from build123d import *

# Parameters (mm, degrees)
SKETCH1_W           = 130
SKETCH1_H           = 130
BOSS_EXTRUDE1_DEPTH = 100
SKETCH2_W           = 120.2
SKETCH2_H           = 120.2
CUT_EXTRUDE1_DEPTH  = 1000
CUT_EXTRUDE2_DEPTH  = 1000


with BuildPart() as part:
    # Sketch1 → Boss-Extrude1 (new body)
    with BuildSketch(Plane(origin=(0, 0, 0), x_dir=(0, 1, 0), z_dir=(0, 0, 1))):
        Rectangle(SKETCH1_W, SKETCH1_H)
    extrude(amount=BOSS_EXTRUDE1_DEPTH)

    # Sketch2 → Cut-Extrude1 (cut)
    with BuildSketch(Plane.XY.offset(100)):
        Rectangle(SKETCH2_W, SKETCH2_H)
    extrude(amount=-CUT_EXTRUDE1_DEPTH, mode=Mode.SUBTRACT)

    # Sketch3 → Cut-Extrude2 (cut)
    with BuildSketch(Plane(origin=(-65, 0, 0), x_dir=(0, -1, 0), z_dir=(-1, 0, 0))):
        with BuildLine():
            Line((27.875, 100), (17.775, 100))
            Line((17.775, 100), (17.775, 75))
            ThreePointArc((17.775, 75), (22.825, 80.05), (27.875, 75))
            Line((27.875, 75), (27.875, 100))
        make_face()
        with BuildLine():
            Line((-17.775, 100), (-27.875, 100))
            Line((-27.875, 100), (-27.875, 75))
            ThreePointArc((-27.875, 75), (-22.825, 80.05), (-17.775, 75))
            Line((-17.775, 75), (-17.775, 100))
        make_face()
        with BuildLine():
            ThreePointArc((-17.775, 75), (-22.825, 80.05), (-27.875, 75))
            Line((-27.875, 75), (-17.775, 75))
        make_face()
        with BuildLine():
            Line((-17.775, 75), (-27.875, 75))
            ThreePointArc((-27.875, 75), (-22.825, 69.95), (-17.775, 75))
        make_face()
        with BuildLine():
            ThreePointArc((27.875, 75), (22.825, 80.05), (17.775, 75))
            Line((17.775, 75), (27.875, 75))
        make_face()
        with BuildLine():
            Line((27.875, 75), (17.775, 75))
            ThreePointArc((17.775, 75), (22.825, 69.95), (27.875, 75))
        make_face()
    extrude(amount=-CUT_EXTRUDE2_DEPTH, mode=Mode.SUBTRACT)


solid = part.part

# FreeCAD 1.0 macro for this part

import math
import FreeCAD as App
import Part
import Sketcher
from FreeCAD import Vector

doc = App.newDocument("Part")
body = doc.addObject("PartDesign::Body", "Body")

sketch1 = body.newObject("Sketcher::SketchObject", "Sketch")
sketch1.AttachmentSupport = (doc.getObject("XY_Plane"), [""])
sketch1.MapMode = "FlatFace"
sketch1.addGeometry(Part.LineSegment(Vector(-65, -65, 0), Vector(65, -65, 0)), False)
sketch1.addGeometry(Part.LineSegment(Vector(65, -65, 0), Vector(65, 65, 0)), False)
sketch1.addGeometry(Part.LineSegment(Vector(65, 65, 0), Vector(-65, 65, 0)), False)
sketch1.addGeometry(Part.LineSegment(Vector(-65, 65, 0), Vector(-65, -65, 0)), False)
sketch1.addConstraint(Sketcher.Constraint("Coincident", 0, 2, 1, 1))
sketch1.addConstraint(Sketcher.Constraint("Coincident", 1, 2, 2, 1))
sketch1.addConstraint(Sketcher.Constraint("Coincident", 2, 2, 3, 1))
sketch1.addConstraint(Sketcher.Constraint("Coincident", 3, 2, 0, 1))
sketch1.addConstraint(Sketcher.Constraint("Horizontal", 0))
sketch1.addConstraint(Sketcher.Constraint("Vertical", 1))
sketch1.addConstraint(Sketcher.Constraint("Horizontal", 2))
sketch1.addConstraint(Sketcher.Constraint("Vertical", 3))
sketch1.addConstraint(Sketcher.Constraint("Symmetric", 0, 2, 2, 2, -1, 1))
sketch1.addConstraint(Sketcher.Constraint("Equal", 2, 1))
sketch1.addConstraint(Sketcher.Constraint("DistanceX", 0, 1, 0, 2, 130.0))
pad1 = body.newObject("PartDesign::Pad", "Pad")
pad1.Profile = sketch1
pad1.Length = 100

sketch2 = body.newObject("Sketcher::SketchObject", "Sketch001")
sketch2.AttachmentSupport = (doc.getObject("XY_Plane"), [""])
sketch2.MapMode = "FlatFace"
sketch2.AttachmentOffset = App.Placement(Vector(0, 0, 100), App.Rotation())
sketch2.addGeometry(Part.LineSegment(Vector(-60, 60, 0), Vector(-60, -60, 0)), False)
sketch2.addGeometry(Part.LineSegment(Vector(-60, -60, 0), Vector(60, -60, 0)), False)
sketch2.addGeometry(Part.LineSegment(Vector(60, -60, 0), Vector(60, 60, 0)), False)
sketch2.addGeometry(Part.LineSegment(Vector(60, 60, 0), Vector(-60, 60, 0)), False)
sketch2.addConstraint(Sketcher.Constraint("Coincident", 0, 2, 1, 1))
sketch2.addConstraint(Sketcher.Constraint("Coincident", 1, 2, 2, 1))
sketch2.addConstraint(Sketcher.Constraint("Coincident", 2, 2, 3, 1))
sketch2.addConstraint(Sketcher.Constraint("Coincident", 3, 2, 0, 1))
sketch2.addConstraint(Sketcher.Constraint("Vertical", 0))
sketch2.addConstraint(Sketcher.Constraint("Horizontal", 1))
sketch2.addConstraint(Sketcher.Constraint("Vertical", 2))
sketch2.addConstraint(Sketcher.Constraint("Horizontal", 3))
sketch2.addConstraint(Sketcher.Constraint("Symmetric", 0, 2, 2, 2, -1, 1))
sketch2.addConstraint(Sketcher.Constraint("Equal", 3, 0))
sketch2.addConstraint(Sketcher.Constraint("DistanceX", 1, 1, 1, 2, 120.2))
pocket1 = body.newObject("PartDesign::Pocket", "Pocket")
pocket1.Profile = sketch2
pocket1.Length = 1000

sketch3 = body.newObject("Sketcher::SketchObject", "Sketch002")
sketch3.AttachmentSupport = (doc.getObject("YZ_Plane"), [""])
sketch3.MapMode = "FlatFace"
sketch3.AttachmentOffset = App.Placement(Vector(0, 0, -65), App.Rotation())
sketch3.addGeometry(Part.LineSegment(Vector(-18, 100, 0), Vector(-18, 75, 0)), False)
sketch3.addGeometry(Part.ArcOfCircle(Part.Circle(Vector(-23, 75, 0), Vector(0, 0, 1), 5), math.radians(180), math.radians(360)), False)
sketch3.addGeometry(Part.LineSegment(Vector(-28, 75, 0), Vector(-28, 100, 0)), False)
sketch3.addGeometry(Part.LineSegment(Vector(-28, 100, 0), Vector(-18, 100, 0)), False)
sketch3.addGeometry(Part.LineSegment(Vector(28, 100, 0), Vector(28, 75, 0)), False)
sketch3.addGeometry(Part.ArcOfCircle(Part.Circle(Vector(23, 75, 0), Vector(0, 0, 1), 5), math.radians(180), math.radians(360)), False)
sketch3.addGeometry(Part.LineSegment(Vector(18, 75, 0), Vector(18, 100, 0)), False)
sketch3.addGeometry(Part.LineSegment(Vector(18, 100, 0), Vector(28, 100, 0)), False)
sketch3.addConstraint(Sketcher.Constraint("Tangent", 0, 2, 1, 2))
sketch3.addConstraint(Sketcher.Constraint("Tangent", 1, 1, 2, 1))
sketch3.addConstraint(Sketcher.Constraint("Coincident", 2, 2, 3, 1))
sketch3.addConstraint(Sketcher.Constraint("Coincident", 3, 2, 0, 1))
sketch3.addConstraint(Sketcher.Constraint("Tangent", 4, 2, 5, 2))
sketch3.addConstraint(Sketcher.Constraint("Tangent", 5, 1, 6, 1))
sketch3.addConstraint(Sketcher.Constraint("Coincident", 6, 2, 7, 1))
sketch3.addConstraint(Sketcher.Constraint("Coincident", 7, 2, 4, 1))
sketch3.addConstraint(Sketcher.Constraint("Vertical", 0))
sketch3.addConstraint(Sketcher.Constraint("Vertical", 2))
sketch3.addConstraint(Sketcher.Constraint("Horizontal", 3))
sketch3.addConstraint(Sketcher.Constraint("Vertical", 4))
sketch3.addConstraint(Sketcher.Constraint("Vertical", 6))
sketch3.addConstraint(Sketcher.Constraint("Horizontal", 7))
sketch3.addConstraint(Sketcher.Constraint("Equal", 1, 5))
sketch3.addConstraint(Sketcher.Constraint("Symmetric", 1, 3, 5, 3, -2))
sketch3.addConstraint(Sketcher.Constraint("Horizontal", 3, 2, 6, 2))
sketch3.addConstraint(Sketcher.Constraint("DistanceY", 0, 2, 0, 1, 25.0))
sketch3.addConstraint(Sketcher.Constraint("Radius", 1, 5.05))
sketch3.addConstraint(Sketcher.Constraint("DistanceY", -1, 1, 1, 3, 75.0))
sketch3.addConstraint(Sketcher.Constraint("DistanceX", 0, 2, 5, 3, 40.6))
pocket2 = body.newObject("PartDesign::Pocket", "Pocket001")
pocket2.Profile = sketch3
pocket2.Length = 1000
pocket2.Reversed = True

doc.recompute()
